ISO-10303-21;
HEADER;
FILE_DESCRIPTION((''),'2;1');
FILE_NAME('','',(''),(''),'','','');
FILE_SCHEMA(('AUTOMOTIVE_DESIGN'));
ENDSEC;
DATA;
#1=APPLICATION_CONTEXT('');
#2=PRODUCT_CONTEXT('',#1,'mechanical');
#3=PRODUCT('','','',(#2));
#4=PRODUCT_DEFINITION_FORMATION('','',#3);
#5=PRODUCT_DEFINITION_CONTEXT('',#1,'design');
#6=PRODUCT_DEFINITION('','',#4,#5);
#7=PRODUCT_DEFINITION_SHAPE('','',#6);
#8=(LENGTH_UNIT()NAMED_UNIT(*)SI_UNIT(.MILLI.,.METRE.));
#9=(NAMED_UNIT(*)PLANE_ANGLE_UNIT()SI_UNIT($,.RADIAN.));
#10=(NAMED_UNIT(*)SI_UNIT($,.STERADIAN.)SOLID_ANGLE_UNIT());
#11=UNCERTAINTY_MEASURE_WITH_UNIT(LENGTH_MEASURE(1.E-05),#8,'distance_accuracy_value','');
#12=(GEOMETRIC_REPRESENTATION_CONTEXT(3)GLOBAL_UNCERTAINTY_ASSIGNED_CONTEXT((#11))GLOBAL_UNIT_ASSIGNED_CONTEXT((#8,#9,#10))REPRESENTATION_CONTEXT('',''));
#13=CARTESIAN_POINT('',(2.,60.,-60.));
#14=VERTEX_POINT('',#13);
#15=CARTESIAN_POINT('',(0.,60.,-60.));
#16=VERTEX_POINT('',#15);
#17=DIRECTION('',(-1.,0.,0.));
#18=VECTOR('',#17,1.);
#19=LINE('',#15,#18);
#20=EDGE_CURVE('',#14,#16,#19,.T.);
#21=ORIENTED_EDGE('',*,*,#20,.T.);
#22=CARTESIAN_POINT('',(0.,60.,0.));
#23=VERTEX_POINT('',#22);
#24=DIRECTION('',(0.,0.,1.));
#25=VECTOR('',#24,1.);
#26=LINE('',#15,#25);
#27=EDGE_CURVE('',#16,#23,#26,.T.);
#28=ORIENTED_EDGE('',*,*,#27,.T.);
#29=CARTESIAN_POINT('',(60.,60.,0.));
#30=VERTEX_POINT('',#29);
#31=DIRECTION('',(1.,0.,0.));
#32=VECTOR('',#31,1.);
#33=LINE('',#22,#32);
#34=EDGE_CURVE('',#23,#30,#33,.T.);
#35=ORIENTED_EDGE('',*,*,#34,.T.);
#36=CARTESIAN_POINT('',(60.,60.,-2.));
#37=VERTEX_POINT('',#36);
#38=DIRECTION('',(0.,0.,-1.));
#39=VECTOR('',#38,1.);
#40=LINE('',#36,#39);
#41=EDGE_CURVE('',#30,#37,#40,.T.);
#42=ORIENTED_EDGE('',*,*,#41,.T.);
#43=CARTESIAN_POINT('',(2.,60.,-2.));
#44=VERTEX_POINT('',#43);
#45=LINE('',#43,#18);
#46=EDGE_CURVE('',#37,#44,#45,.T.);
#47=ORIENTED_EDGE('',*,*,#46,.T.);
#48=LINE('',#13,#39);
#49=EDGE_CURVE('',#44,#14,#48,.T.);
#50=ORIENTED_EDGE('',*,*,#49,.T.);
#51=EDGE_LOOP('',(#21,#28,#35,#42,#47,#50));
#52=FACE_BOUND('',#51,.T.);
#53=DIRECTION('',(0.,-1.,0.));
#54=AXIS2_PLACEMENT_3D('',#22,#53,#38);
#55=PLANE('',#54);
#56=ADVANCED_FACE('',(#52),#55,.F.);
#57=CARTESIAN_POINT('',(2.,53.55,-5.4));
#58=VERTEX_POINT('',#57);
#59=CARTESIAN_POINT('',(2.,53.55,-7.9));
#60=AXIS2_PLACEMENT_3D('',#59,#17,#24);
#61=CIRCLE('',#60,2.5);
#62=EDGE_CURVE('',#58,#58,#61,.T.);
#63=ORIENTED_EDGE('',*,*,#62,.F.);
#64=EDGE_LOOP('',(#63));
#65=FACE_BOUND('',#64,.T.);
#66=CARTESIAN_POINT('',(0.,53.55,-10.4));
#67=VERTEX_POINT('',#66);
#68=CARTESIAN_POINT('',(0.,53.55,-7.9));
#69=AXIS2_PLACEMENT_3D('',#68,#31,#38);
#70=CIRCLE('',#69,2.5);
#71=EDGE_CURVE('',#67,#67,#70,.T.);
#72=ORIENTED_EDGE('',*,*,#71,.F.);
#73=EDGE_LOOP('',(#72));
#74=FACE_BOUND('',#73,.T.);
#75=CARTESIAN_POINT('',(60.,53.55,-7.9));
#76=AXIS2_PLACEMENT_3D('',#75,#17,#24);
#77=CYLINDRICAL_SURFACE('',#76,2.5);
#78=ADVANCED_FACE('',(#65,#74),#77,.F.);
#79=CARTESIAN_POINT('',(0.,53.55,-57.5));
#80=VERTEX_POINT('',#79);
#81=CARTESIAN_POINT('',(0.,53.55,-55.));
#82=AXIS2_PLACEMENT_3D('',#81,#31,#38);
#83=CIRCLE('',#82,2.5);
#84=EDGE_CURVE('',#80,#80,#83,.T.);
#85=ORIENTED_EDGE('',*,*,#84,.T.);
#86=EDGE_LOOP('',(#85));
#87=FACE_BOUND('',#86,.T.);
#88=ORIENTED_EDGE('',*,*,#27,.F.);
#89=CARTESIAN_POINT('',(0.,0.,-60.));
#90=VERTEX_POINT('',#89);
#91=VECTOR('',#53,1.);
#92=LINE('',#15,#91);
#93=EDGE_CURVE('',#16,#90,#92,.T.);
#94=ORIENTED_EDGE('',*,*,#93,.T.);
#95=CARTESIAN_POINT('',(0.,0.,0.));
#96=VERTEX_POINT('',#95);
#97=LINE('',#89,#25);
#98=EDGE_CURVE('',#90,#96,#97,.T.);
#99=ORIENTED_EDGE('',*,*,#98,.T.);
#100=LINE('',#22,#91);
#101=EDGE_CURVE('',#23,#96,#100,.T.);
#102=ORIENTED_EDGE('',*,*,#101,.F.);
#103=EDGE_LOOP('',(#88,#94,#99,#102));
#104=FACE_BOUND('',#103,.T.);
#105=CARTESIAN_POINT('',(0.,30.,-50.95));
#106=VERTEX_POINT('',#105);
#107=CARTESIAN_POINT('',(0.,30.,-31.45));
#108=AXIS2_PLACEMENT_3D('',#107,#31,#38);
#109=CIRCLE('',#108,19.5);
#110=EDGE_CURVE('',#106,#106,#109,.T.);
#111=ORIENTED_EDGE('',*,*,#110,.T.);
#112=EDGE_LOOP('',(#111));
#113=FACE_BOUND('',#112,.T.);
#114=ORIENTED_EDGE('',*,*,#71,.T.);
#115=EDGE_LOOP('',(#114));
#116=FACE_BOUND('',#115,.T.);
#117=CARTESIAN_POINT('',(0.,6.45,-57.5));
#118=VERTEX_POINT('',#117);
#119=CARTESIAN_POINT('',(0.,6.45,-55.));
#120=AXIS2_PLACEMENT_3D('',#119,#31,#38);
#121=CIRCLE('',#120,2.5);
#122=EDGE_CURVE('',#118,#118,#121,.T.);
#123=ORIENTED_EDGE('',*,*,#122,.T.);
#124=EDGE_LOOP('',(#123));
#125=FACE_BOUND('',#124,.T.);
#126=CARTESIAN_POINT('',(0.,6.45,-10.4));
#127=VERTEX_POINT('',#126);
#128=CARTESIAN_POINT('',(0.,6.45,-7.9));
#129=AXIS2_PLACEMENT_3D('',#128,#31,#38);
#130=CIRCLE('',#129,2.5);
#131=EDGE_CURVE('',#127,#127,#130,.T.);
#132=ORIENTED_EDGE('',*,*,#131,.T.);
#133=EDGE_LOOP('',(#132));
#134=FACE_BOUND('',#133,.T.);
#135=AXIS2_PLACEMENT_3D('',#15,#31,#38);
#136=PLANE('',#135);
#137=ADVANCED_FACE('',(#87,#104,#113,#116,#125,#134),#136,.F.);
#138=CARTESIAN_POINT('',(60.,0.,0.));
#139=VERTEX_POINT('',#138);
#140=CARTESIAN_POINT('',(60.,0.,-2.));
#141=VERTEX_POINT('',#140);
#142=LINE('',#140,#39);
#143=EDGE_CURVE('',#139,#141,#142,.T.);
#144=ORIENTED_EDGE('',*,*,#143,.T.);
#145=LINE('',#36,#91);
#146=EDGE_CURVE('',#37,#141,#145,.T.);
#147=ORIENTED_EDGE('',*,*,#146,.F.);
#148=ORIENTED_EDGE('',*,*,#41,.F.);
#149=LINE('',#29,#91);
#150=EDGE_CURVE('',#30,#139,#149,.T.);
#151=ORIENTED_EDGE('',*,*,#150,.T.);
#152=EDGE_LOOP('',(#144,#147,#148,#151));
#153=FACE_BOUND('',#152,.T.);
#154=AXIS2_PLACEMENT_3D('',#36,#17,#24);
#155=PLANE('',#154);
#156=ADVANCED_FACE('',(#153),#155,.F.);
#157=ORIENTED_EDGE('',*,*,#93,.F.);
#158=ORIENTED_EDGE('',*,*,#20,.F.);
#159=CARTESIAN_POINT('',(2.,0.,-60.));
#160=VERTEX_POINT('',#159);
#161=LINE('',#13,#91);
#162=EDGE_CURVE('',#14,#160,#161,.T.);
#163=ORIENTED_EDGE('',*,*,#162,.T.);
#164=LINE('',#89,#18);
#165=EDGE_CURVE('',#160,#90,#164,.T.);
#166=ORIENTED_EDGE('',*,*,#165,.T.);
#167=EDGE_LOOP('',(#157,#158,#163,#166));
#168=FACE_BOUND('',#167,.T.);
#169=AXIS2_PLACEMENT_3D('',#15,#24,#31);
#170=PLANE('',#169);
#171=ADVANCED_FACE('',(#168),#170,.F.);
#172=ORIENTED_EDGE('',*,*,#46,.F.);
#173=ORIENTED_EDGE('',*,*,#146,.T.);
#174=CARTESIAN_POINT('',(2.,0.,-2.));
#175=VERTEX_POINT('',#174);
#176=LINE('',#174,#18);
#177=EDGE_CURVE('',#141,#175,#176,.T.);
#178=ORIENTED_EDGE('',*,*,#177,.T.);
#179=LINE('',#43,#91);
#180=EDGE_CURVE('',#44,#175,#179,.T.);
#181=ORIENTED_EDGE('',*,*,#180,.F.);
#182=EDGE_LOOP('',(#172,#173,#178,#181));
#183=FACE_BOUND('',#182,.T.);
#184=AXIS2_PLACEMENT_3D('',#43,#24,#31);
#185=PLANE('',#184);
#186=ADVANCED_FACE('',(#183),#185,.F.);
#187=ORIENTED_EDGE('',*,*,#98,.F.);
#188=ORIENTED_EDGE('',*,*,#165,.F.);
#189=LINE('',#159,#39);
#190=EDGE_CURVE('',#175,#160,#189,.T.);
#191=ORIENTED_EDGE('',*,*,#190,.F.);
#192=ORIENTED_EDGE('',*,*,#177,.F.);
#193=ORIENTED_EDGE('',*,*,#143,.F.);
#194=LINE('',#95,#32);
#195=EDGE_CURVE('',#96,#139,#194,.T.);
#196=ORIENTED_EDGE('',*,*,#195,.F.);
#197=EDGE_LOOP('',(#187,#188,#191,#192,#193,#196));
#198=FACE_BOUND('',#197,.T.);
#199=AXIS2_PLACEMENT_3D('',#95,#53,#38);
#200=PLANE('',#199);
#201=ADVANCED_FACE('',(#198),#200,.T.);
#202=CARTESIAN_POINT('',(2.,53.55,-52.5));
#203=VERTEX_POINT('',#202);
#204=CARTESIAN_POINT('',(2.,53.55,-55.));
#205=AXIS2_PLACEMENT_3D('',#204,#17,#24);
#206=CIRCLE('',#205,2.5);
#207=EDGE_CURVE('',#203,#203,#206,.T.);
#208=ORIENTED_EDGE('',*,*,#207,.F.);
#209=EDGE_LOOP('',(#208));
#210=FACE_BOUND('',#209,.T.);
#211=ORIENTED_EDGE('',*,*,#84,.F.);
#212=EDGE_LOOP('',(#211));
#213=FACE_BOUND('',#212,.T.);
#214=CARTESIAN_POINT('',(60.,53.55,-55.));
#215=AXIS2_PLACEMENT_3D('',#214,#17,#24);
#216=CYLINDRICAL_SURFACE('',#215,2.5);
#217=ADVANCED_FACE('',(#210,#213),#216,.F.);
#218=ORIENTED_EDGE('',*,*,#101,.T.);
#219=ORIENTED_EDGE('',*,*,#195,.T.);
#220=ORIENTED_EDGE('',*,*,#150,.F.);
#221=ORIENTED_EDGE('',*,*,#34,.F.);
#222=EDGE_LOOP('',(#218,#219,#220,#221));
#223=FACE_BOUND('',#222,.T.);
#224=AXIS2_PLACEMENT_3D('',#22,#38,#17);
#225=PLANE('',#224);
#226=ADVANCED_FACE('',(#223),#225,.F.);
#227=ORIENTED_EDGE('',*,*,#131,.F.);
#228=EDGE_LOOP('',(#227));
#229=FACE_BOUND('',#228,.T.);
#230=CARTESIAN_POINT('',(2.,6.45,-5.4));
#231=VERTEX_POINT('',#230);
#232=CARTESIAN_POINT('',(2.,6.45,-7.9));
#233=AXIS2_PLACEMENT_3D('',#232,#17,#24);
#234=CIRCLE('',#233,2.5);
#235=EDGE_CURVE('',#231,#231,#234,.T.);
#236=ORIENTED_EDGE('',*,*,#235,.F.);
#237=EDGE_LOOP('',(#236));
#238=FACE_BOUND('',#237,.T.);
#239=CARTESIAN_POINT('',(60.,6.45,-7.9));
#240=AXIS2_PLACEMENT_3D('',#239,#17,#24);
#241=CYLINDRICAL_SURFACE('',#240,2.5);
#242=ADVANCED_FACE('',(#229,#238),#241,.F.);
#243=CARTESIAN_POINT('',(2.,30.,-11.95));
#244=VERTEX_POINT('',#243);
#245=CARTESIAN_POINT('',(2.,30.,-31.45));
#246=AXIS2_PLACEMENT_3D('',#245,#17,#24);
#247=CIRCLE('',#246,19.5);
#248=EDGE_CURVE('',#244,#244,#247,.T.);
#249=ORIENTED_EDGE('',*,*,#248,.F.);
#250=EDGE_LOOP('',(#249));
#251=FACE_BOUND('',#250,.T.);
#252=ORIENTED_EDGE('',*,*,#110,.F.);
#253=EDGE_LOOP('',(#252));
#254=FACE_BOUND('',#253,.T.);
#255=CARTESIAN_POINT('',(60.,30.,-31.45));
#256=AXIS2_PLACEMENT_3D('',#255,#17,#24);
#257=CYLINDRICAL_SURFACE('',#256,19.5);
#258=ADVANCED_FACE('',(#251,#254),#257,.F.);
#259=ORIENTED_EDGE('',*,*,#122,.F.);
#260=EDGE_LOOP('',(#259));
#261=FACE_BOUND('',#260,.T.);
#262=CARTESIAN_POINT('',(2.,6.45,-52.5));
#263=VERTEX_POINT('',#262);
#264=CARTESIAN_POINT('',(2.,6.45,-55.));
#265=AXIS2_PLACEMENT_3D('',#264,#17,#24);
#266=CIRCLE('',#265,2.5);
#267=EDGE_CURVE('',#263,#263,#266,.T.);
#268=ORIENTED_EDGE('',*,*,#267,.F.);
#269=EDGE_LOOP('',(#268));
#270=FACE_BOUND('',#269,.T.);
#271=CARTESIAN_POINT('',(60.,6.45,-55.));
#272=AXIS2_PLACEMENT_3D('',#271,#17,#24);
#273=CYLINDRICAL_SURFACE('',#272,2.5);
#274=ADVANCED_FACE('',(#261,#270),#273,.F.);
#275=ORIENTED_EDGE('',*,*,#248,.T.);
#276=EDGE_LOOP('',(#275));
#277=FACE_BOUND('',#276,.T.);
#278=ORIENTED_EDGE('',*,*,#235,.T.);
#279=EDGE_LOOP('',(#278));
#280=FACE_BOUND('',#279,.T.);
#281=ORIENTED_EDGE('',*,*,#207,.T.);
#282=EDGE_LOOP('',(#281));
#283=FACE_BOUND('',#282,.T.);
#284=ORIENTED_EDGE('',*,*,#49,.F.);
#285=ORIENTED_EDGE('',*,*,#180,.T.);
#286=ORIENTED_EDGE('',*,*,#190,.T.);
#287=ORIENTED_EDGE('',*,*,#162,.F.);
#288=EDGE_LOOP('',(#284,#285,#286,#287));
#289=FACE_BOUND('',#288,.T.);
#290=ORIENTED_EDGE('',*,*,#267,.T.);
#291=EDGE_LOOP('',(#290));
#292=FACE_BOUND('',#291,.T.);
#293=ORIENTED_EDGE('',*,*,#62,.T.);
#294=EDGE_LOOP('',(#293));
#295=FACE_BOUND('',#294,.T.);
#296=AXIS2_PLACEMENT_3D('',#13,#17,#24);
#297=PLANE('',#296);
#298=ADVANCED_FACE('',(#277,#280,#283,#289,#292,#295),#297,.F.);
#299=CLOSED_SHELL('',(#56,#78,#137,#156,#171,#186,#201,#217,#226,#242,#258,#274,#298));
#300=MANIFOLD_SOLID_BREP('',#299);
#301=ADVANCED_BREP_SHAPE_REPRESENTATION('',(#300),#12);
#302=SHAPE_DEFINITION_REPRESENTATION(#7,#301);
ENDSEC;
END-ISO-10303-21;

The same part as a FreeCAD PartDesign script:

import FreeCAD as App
import Part
import Sketcher

V = App.Vector
Q = App.Units.Quantity

doc = App.newDocument("Part")
body = doc.addObject("PartDesign::Body", "Body")

sketch1 = body.newObject("Sketcher::SketchObject", "Sketch")
sketch1.AttachmentSupport = (doc.getObject("XZ_Plane"), [""])
sketch1.MapMode = "FlatFace"
sketch1.addGeometry(Part.LineSegment(V(0, -60, 0), V(0, 0, 0)), False)
sketch1.addGeometry(Part.LineSegment(V(0, 0, 0), V(60, 0, 0)), False)
sketch1.addGeometry(Part.LineSegment(V(60, 0, 0), V(60, -2, 0)), False)
sketch1.addGeometry(Part.LineSegment(V(60, -2, 0), V(2, -2, 0)), False)
sketch1.addGeometry(Part.LineSegment(V(2, -2, 0), V(2, -60, 0)), False)
sketch1.addGeometry(Part.LineSegment(V(2, -60, 0), V(0, -60, 0)), False)
sketch1.addConstraint(Sketcher.Constraint("Coincident", 0, 2, 1, 1))
sketch1.addConstraint(Sketcher.Constraint("Coincident", 1, 2, 2, 1))
sketch1.addConstraint(Sketcher.Constraint("Coincident", 2, 2, 3, 1))
sketch1.addConstraint(Sketcher.Constraint("Coincident", 3, 2, 4, 1))
sketch1.addConstraint(Sketcher.Constraint("Coincident", 4, 2, 5, 1))
sketch1.addConstraint(Sketcher.Constraint("Coincident", 5, 2, 0, 1))
sketch1.addConstraint(Sketcher.Constraint("Vertical", 0))
sketch1.addConstraint(Sketcher.Constraint("Horizontal", 1))
sketch1.addConstraint(Sketcher.Constraint("Vertical", 2))
sketch1.addConstraint(Sketcher.Constraint("Horizontal", 3))
sketch1.addConstraint(Sketcher.Constraint("Vertical", 4))
sketch1.addConstraint(Sketcher.Constraint("Horizontal", 5))
sketch1.addConstraint(Sketcher.Constraint("Coincident", 0, 2, -1, 1))
sketch1.addConstraint(Sketcher.Constraint("Equal", 1, 0))
sketch1.addConstraint(Sketcher.Constraint("Equal", 5, 2))
sketch1.addConstraint(Sketcher.Constraint("DistanceX", 1, 1, 1, 2, Q("60 mm")))
sketch1.addConstraint(Sketcher.Constraint("DistanceX", 3, 2, 3, 1, Q("58 mm")))
pad1 = body.newObject("PartDesign::Pad", "Pad")
pad1.Profile = sketch1
pad1.Length = 60
pad1.Reversed = True

sketch2 = body.newObject("Sketcher::SketchObject", "Sketch001")
sketch2.AttachmentSupport = (doc.getObject("YZ_Plane"), [""])
sketch2.MapMode = "FlatFace"
sketch2.addGeometry(Part.Circle(V(53.55, -55, 0), V(0, 0, 1), 2.5), False)
sketch2.addGeometry(Part.Circle(V(53.55, -7.9, 0), V(0, 0, 1), 2.5), False)
sketch2.addGeometry(Part.Circle(V(6.45, -7.9, 0), V(0, 0, 1), 2.5), False)
sketch2.addGeometry(Part.Circle(V(6.45, -55, 0), V(0, 0, 1), 2.5), False)
sketch2.addGeometry(Part.Circle(V(30, -31.45, 0), V(0, 0, 1), 19.5), False)
sketch2.addConstraint(Sketcher.Constraint("Equal", 0, 1))
sketch2.addConstraint(Sketcher.Constraint("Equal", 1, 2))
sketch2.addConstraint(Sketcher.Constraint("Equal", 2, 3))
sketch2.addConstraint(Sketcher.Constraint("Horizontal", 1, 3, 2, 3))
sketch2.addConstraint(Sketcher.Constraint("Horizontal", 0, 3, 3, 3))
sketch2.addConstraint(Sketcher.Constraint("Vertical", 0, 3, 1, 3))
sketch2.addConstraint(Sketcher.Constraint("Vertical", 2, 3, 3, 3))
sketch2.addConstraint(Sketcher.Constraint("Diameter", 0, Q("5 mm")))
sketch2.addConstraint(Sketcher.Constraint("Diameter", 4, Q("39 mm")))
sketch2.addConstraint(Sketcher.Constraint("DistanceY", 0, 3, -1, 1, Q("55 mm")))
sketch2.addConstraint(Sketcher.Constraint("DistanceX", -1, 1, 4, 3, Q("30 mm")))
sketch2.addConstraint(Sketcher.Constraint("DistanceY", 1, 3, -1, 1, Q("7.9 mm")))
sketch2.addConstraint(Sketcher.Constraint("DistanceX", 2, 3, 1, 3, Q("47.1 mm")))
sketch2.addConstraint(Sketcher.Constraint("DistanceX", -1, 1, 0, 3, Q("53.55 mm")))
sketch2.addConstraint(Sketcher.Constraint("DistanceY", 4, 3, -1, 1, Q("31.45 mm")))
pocket1 = body.newObject("PartDesign::Pocket", "Pocket")
pocket1.Profile = sketch2
pocket1.Type = "ThroughAll"
pocket1.Midplane = True

doc.recompute()
